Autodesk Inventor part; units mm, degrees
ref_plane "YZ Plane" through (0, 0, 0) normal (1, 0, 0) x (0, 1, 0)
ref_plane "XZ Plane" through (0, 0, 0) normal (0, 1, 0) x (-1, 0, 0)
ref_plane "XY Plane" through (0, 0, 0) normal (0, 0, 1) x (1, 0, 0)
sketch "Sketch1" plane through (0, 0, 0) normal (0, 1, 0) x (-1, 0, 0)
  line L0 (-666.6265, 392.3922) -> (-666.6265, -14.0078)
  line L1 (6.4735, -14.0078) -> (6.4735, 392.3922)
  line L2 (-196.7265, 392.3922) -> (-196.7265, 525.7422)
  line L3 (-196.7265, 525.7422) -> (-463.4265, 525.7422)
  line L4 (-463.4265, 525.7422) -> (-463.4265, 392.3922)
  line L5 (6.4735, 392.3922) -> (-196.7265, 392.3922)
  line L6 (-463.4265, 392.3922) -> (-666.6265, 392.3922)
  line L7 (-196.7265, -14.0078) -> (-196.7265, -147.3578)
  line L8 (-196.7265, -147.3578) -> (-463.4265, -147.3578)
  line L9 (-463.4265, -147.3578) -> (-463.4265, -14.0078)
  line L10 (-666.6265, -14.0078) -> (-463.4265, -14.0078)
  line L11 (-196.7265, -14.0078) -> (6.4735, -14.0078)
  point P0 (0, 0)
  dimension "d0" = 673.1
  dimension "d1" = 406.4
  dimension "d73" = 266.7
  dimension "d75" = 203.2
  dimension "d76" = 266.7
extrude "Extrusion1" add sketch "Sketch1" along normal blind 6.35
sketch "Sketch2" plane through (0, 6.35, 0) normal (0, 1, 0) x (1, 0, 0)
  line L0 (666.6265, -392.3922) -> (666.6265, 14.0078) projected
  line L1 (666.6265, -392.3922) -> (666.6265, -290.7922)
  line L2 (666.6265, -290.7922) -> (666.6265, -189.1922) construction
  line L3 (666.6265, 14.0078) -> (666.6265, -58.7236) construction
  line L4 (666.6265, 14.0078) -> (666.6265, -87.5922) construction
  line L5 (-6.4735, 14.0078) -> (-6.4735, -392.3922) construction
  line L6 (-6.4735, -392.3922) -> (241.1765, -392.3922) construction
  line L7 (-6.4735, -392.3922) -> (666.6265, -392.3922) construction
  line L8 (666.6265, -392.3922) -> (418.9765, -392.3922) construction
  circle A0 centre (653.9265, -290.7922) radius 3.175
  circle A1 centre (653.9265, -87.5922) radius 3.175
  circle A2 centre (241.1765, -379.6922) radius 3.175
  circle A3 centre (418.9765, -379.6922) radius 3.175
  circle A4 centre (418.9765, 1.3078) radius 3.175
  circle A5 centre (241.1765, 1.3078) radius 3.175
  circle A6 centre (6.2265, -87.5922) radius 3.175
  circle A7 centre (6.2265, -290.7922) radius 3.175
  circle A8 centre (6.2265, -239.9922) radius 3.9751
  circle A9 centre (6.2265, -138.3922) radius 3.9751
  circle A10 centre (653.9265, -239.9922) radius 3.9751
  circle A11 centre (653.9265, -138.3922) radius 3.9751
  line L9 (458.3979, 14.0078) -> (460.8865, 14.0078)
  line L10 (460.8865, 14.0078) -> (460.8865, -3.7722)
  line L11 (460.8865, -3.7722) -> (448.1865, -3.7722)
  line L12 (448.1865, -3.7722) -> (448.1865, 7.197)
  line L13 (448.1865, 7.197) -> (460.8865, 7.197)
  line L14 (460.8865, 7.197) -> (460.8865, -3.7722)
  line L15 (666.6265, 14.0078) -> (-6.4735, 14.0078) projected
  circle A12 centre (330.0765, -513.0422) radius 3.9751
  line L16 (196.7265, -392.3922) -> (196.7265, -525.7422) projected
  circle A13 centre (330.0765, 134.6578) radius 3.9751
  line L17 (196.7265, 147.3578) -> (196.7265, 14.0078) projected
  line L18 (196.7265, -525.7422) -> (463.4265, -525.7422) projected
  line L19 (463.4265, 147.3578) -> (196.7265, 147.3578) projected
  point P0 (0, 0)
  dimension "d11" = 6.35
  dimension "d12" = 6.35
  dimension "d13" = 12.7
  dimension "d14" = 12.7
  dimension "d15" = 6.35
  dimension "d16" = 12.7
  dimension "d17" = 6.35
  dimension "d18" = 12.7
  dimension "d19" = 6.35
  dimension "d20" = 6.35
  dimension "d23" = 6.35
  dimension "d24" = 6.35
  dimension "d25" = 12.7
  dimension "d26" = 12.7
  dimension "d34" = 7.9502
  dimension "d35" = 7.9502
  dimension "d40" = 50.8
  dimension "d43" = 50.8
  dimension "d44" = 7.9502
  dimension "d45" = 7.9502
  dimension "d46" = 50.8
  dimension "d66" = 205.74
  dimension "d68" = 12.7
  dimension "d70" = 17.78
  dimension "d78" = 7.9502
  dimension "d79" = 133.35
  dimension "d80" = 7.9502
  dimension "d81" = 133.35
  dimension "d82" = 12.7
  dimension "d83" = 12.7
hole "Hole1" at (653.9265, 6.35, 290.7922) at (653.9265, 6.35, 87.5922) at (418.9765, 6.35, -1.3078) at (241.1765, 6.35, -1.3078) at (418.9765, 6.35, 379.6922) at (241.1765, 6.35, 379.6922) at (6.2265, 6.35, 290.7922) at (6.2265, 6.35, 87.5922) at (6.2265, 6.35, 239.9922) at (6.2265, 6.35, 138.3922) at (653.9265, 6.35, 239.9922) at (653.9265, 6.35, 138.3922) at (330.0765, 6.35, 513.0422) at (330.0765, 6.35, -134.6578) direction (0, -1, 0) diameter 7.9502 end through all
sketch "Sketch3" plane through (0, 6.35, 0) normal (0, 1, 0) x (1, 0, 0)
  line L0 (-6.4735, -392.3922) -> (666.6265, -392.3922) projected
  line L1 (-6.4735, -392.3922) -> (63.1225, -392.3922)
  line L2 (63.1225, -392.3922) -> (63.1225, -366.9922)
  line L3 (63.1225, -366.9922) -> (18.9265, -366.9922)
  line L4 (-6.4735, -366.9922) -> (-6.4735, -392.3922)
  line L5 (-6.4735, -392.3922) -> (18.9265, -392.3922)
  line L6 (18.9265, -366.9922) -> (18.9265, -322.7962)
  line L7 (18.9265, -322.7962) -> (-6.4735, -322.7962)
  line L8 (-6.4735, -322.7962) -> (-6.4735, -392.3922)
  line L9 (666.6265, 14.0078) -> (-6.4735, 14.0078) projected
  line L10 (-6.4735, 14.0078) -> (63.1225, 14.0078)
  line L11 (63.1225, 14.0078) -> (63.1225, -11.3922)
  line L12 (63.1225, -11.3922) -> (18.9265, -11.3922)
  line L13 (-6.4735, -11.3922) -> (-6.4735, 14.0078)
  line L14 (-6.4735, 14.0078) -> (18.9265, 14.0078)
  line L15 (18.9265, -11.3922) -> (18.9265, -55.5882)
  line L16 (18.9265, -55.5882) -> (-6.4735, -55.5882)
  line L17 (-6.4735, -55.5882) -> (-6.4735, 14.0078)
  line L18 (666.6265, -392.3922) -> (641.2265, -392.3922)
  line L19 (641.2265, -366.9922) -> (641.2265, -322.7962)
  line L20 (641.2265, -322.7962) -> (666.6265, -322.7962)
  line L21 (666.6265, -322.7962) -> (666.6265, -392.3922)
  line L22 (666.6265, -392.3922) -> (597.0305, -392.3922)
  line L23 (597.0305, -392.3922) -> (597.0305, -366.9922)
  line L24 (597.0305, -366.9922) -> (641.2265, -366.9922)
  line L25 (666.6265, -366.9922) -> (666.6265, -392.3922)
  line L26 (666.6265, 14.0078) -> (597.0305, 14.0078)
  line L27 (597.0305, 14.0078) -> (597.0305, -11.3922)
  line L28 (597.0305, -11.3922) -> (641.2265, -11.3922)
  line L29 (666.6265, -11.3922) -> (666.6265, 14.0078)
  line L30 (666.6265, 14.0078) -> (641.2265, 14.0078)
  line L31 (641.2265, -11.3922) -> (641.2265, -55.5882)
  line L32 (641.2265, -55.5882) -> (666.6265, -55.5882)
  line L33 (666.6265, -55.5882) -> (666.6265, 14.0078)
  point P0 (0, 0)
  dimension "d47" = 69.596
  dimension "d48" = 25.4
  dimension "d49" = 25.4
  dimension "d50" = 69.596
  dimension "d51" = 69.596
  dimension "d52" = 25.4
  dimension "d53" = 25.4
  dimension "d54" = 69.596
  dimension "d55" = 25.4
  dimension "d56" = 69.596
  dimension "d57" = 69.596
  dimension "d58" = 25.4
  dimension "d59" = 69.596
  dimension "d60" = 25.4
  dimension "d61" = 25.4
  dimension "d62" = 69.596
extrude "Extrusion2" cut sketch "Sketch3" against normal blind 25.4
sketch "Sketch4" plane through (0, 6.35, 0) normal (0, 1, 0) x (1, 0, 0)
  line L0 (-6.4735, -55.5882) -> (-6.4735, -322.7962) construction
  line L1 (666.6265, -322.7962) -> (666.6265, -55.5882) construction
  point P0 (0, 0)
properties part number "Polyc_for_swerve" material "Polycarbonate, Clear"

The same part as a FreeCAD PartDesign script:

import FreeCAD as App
import Part
import Sketcher

V = App.Vector
Q = App.Units.Quantity

doc = App.newDocument("Part")
body = doc.addObject("PartDesign::Body", "Body")

# Sketch on XZ plane
sketch1 = body.newObject("Sketcher::SketchObject", "Sketch")
sketch1.AttachmentSupport = (doc.getObject("XZ_Plane"), [""])
sketch1.MapMode = "FlatFace"
sketch1.addGeometry(Part.LineSegment(V(463, 392, 0), V(667, 392, 0)), False)
sketch1.addGeometry(Part.LineSegment(V(667, 392, 0), V(667, -14, 0)), False)
sketch1.addGeometry(Part.LineSegment(V(667, -14, 0), V(463, -14, 0)), False)
sketch1.addGeometry(Part.LineSegment(V(463, -14, 0), V(463, -147, 0)), False)
sketch1.addGeometry(Part.LineSegment(V(463, -147, 0), V(197, -147, 0)), False)
sketch1.addGeometry(Part.LineSegment(V(197, -147, 0), V(197, -14, 0)), False)
sketch1.addGeometry(Part.LineSegment(V(197, -14, 0), V(-6, -14, 0)), False)
sketch1.addGeometry(Part.LineSegment(V(-6, -14, 0), V(-6, 392, 0)), False)
sketch1.addGeometry(Part.LineSegment(V(-6, 392, 0), V(197, 392, 0)), False)
sketch1.addGeometry(Part.LineSegment(V(197, 392, 0), V(197, 526, 0)), False)
sketch1.addGeometry(Part.LineSegment(V(197, 526, 0), V(463, 526, 0)), False)
sketch1.addGeometry(Part.LineSegment(V(463, 526, 0), V(463, 392, 0)), False)
sketch1.addConstraint(Sketcher.Constraint("Coincident", 0, 2, 1, 1))
sketch1.addConstraint(Sketcher.Constraint("Coincident", 1, 2, 2, 1))
sketch1.addConstraint(Sketcher.Constraint("Coincident", 2, 2, 3, 1))
sketch1.addConstraint(Sketcher.Constraint("Coincident", 3, 2, 4, 1))
sketch1.addConstraint(Sketcher.Constraint("Coincident", 4, 2, 5, 1))
sketch1.addConstraint(Sketcher.Constraint("Coincident", 5, 2, 6, 1))
sketch1.addConstraint(Sketcher.Constraint("Coincident", 6, 2, 7, 1))
sketch1.addConstraint(Sketcher.Constraint("Coincident", 7, 2, 8, 1))
sketch1.addConstraint(Sketcher.Constraint("Coincident", 8, 2, 9, 1))
sketch1.addConstraint(Sketcher.Constraint("Coincident", 9, 2, 10, 1))
sketch1.addConstraint(Sketcher.Constraint("Coincident", 10, 2, 11, 1))
sketch1.addConstraint(Sketcher.Constraint("Coincident", 11, 2, 0, 1))
sketch1.addConstraint(Sketcher.Constraint("Horizontal", 0))
sketch1.addConstraint(Sketcher.Constraint("Vertical", 1))
sketch1.addConstraint(Sketcher.Constraint("Horizontal", 2))
sketch1.addConstraint(Sketcher.Constraint("Vertical", 3))
sketch1.addConstraint(Sketcher.Constraint("Horizontal", 4))
sketch1.addConstraint(Sketcher.Constraint("Vertical", 5))
sketch1.addConstraint(Sketcher.Constraint("Horizontal", 6))
sketch1.addConstraint(Sketcher.Constraint("Vertical", 7))
sketch1.addConstraint(Sketcher.Constraint("Horizontal", 8))
sketch1.addConstraint(Sketcher.Constraint("Vertical", 9))
sketch1.addConstraint(Sketcher.Constraint("Horizontal", 10))
sketch1.addConstraint(Sketcher.Constraint("Vertical", 11))
sketch1.addConstraint(Sketcher.Constraint("Horizontal", 2, 2, 5, 2))
sketch1.addConstraint(Sketcher.Constraint("Horizontal", 0, 2, 7, 2))
sketch1.addConstraint(Sketcher.Constraint("Vertical", 5, 2, 8, 2))
sketch1.addConstraint(Sketcher.Constraint("Vertical", 3, 2, 10, 2))
sketch1.addConstraint(Sketcher.Constraint("Equal", 2, 6))
sketch1.addConstraint(Sketcher.Constraint("Equal", 5, 9))
sketch1.addConstraint(Sketcher.Constraint("DistanceX", 0, 1, 0, 2, Q("8 in")))
sketch1.addConstraint(Sketcher.Constraint("DistanceY", 1, 2, 1, 1, Q("16 in")))
sketch1.addConstraint(Sketcher.Constraint("DistanceX", 4, 2, 4, 1, Q("10.5 in")))
sketch1.addConstraint(Sketcher.Constraint("DistanceY", 3, 2, 3, 1, Q("5.25 in")))
sketch1.addConstraint(Sketcher.Constraint("DistanceY", -1, 1, 0, 2, Q("15.4485 in")))
sketch1.addConstraint(Sketcher.Constraint("DistanceX", -1, 1, 0, 2, 666.6265))
pad1 = body.newObject("PartDesign::Pad", "Pad")
pad1.Profile = sketch1
pad1.Length = Q("0.25 in")
pad1.Reversed = True

# Sketch on XZ plane
sketch2 = body.newObject("Sketcher::SketchObject", "Sketch001")
sketch2.AttachmentSupport = (doc.getObject("XZ_Plane"), [""])
sketch2.MapMode = "FlatFace"
sketch2.AttachmentOffset = App.Placement(V(0, 0, -0.25 * 25.4), App.Rotation())
sketch2.addGeometry(Part.Circle(V(653.9, 290.8, 0), V(0, 0, 1), 4), False)
sketch2.addGeometry(Part.Circle(V(653.9, 87.6, 0), V(0, 0, 1), 4), False)
sketch2.addGeometry(Part.Circle(V(419, -1.3, 0), V(0, 0, 1), 4), False)
sketch2.addGeometry(Part.Circle(V(241.2, -1.3, 0), V(0, 0, 1), 4), False)
sketch2.addGeometry(Part.Circle(V(419, 379.7, 0), V(0, 0, 1), 4), False)
sketch2.addGeometry(Part.Circle(V(241.2, 379.7, 0), V(0, 0, 1), 4), False)
sketch2.addGeometry(Part.Circle(V(6.2, 290.8, 0), V(0, 0, 1), 4), False)
sketch2.addGeometry(Part.Circle(V(6.2, 87.6, 0), V(0, 0, 1), 4), False)
sketch2.addGeometry(Part.Circle(V(6.2, 240, 0), V(0, 0, 1), 4), False)
sketch2.addGeometry(Part.Circle(V(6.2, 138.4, 0), V(0, 0, 1), 4), False)
sketch2.addGeometry(Part.Circle(V(653.9, 240, 0), V(0, 0, 1), 4), False)
sketch2.addGeometry(Part.Circle(V(653.9, 138.4, 0), V(0, 0, 1), 4), False)
sketch2.addGeometry(Part.Circle(V(330.1, 513, 0), V(0, 0, 1), 4), False)
sketch2.addGeometry(Part.Circle(V(330.1, -134.7, 0), V(0, 0, 1), 4), False)
sketch2.addConstraint(Sketcher.Constraint("Equal", 0, 1))
sketch2.addConstraint(Sketcher.Constraint("Equal", 1, 2))
sketch2.addConstraint(Sketcher.Constraint("Equal", 2, 3))
sketch2.addConstraint(Sketcher.Constraint("Equal", 3, 4))
sketch2.addConstraint(Sketcher.Constraint("Equal", 4, 5))
sketch2.addConstraint(Sketcher.Constraint("Equal", 5, 6))
sketch2.addConstraint(Sketcher.Constraint("Equal", 6, 7))
sketch2.addConstraint(Sketcher.Constraint("Equal", 7, 8))
sketch2.addConstraint(Sketcher.Constraint("Equal", 8, 9))
sketch2.addConstraint(Sketcher.Constraint("Equal", 9, 10))
sketch2.addConstraint(Sketcher.Constraint("Equal", 10, 11))
sketch2.addConstraint(Sketcher.Constraint("Equal", 11, 12))
sketch2.addConstraint(Sketcher.Constraint("Equal", 12, 13))
sketch2.addConstraint(Sketcher.Constraint("Horizontal", 2, 3, 3, 3))
sketch2.addConstraint(Sketcher.Constraint("Horizontal", 4, 3, 5, 3))
sketch2.addConstraint(Sketcher.Constraint("Horizontal", 0, 3, 6, 3))
sketch2.addConstraint(Sketcher.Constraint("Horizontal", 1, 3, 7, 3))
sketch2.addConstraint(Sketcher.Constraint("Horizontal", 8, 3, 10, 3))
sketch2.addConstraint(Sketcher.Constraint("Horizontal", 9, 3, 11, 3))
sketch2.addConstraint(Sketcher.Constraint("Vertical", 0, 3, 1, 3))
sketch2.addConstraint(Sketcher.Constraint("Vertical", 2, 3, 4, 3))
sketch2.addConstraint(Sketcher.Constraint("Vertical", 3, 3, 5, 3))
sketch2.addConstraint(Sketcher.Constraint("Vertical", 6, 3, 7, 3))
sketch2.addConstraint(Sketcher.Constraint("Vertical", 7, 3, 8, 3))
sketch2.addConstraint(Sketcher.Constraint("Vertical", 8, 3, 9, 3))
sketch2.addConstraint(Sketcher.Constraint("Vertical", 1, 3, 10, 3))
sketch2.addConstraint(Sketcher.Constraint("Vertical", 10, 3, 11, 3))
sketch2.addConstraint(Sketcher.Constraint("Vertical", 12, 3, 13, 3))
sketch2.addConstraint(Sketcher.Constraint("Diameter", 0, Q("0.313 in")))
sketch2.addConstraint(Sketcher.Constraint("DistanceY", 1, 3, 0, 3, Q("8 in")))
sketch2.addConstraint(Sketcher.Constraint("DistanceX", 3, 3, 2, 3, Q("7 in")))
sketch2.addConstraint(Sketcher.Constraint("DistanceY", 2, 3, 4, 3, Q("15 in")))
sketch2.addConstraint(Sketcher.Constraint("DistanceY", 8, 3, 6, 3, Q("2 in")))
sketch2.addConstraint(Sketcher.Constraint("DistanceY", 7, 3, 9, 3, Q("2 in")))
sketch2.addConstraint(Sketcher.Constraint("DistanceY", 2, 3, 1, 3, Q("3.5 in")))
sketch2.addConstraint(Sketcher.Constraint("DistanceX", 6, 3, 0, 3, Q("25.5 in")))
sketch2.addConstraint(Sketcher.Constraint("DistanceX", 12, 3, 4, 3, Q("3.5 in")))
sketch2.addConstraint(Sketcher.Constraint("DistanceX", 2, 3, 1, 3, Q("9.25 in")))
sketch2.addConstraint(Sketcher.Constraint("DistanceY", 4, 3, 12, 3, Q("5.25 in")))
sketch2.addConstraint(Sketcher.Constraint("DistanceY", 13, 3, 2, 3, Q("5.25 in")))
sketch2.addConstraint(Sketcher.Constraint("DistanceY", -1, 1, 0, 3, Q("11.4485 in")))
sketch2.addConstraint(Sketcher.Constraint("DistanceX", -1, 1, 0, 3, 653.9265))
doc.recompute()
hole = body.newObject("PartDesign::Hole", "Hole")
hole.Profile = sketch2
hole.ThreadType = "None"
hole.Diameter = Q("0.313 in")
hole.DepthType = "ThroughAll"
hole.Reversed = True

# Sketch on XZ plane
sketch3 = body.newObject("Sketcher::SketchObject", "Sketch002")
sketch3.AttachmentSupport = (doc.getObject("XZ_Plane"), [""])
sketch3.MapMode = "FlatFace"
sketch3.AttachmentOffset = App.Placement(V(0, 0, -0.25 * 25.4), App.Rotation())
sketch3.addGeometry(Part.LineSegment(V(-6, 323, 0), V(-6, 392, 0)), False)
sketch3.addGeometry(Part.LineSegment(V(-6, 392, 0), V(63, 392, 0)), False)
sketch3.addGeometry(Part.LineSegment(V(63, 392, 0), V(63, 367, 0)), False)
sketch3.addGeometry(Part.LineSegment(V(63, 367, 0), V(19, 367, 0)), False)
sketch3.addGeometry(Part.LineSegment(V(19, 367, 0), V(19, 323, 0)), False)
sketch3.addGeometry(Part.LineSegment(V(19, 323, 0), V(-6, 323, 0)), False)
sketch3.addGeometry(Part.LineSegment(V(597, 367, 0), V(597, 392, 0)), False)
sketch3.addGeometry(Part.LineSegment(V(597, 392, 0), V(667, 392, 0)), False)
sketch3.addGeometry(Part.LineSegment(V(667, 392, 0), V(667, 323, 0)), False)
sketch3.addGeometry(Part.LineSegment(V(667, 323, 0), V(641, 323, 0)), False)
sketch3.addGeometry(Part.LineSegment(V(641, 323, 0), V(641, 367, 0)), False)
sketch3.addGeometry(Part.LineSegment(V(641, 367, 0), V(597, 367, 0)), False)
sketch3.addGeometry(Part.LineSegment(V(667, 56, 0), V(667, -14, 0)), False)
sketch3.addGeometry(Part.LineSegment(V(667, -14, 0), V(597, -14, 0)), False)
sketch3.addGeometry(Part.LineSegment(V(597, -14, 0), V(597, 11, 0)), False)
sketch3.addGeometry(Part.LineSegment(V(597, 11, 0), V(641, 11, 0)), False)
sketch3.addGeometry(Part.LineSegment(V(641, 11, 0), V(641, 56, 0)), False)
sketch3.addGeometry(Part.LineSegment(V(641, 56, 0), V(667, 56, 0)), False)
sketch3.addGeometry(Part.LineSegment(V(63, 11, 0), V(63, -14, 0)), False)
sketch3.addGeometry(Part.LineSegment(V(63, -14, 0), V(-6, -14, 0)), False)
sketch3.addGeometry(Part.LineSegment(V(-6, -14, 0), V(-6, 56, 0)), False)
sketch3.addGeometry(Part.LineSegment(V(-6, 56, 0), V(19, 56, 0)), False)
sketch3.addGeometry(Part.LineSegment(V(19, 56, 0), V(19, 11, 0)), False)
sketch3.addGeometry(Part.LineSegment(V(19, 11, 0), V(63, 11, 0)), False)
sketch3.addConstraint(Sketcher.Constraint("Coincident", 0, 2, 1, 1))
sketch3.addConstraint(Sketcher.Constraint("Coincident", 1, 2, 2, 1))
sketch3.addConstraint(Sketcher.Constraint("Coincident", 2, 2, 3, 1))
sketch3.addConstraint(Sketcher.Constraint("Coincident", 3, 2, 4, 1))
sketch3.addConstraint(Sketcher.Constraint("Coincident", 4, 2, 5, 1))
sketch3.addConstraint(Sketcher.Constraint("Coincident", 5, 2, 0, 1))
sketch3.addConstraint(Sketcher.Constraint("Coincident", 6, 2, 7, 1))
sketch3.addConstraint(Sketcher.Constraint("Coincident", 7, 2, 8, 1))
sketch3.addConstraint(Sketcher.Constraint("Coincident", 8, 2, 9, 1))
sketch3.addConstraint(Sketcher.Constraint("Coincident", 9, 2, 10, 1))
sketch3.addConstraint(Sketcher.Constraint("Coincident", 10, 2, 11, 1))
sketch3.addConstraint(Sketcher.Constraint("Coincident", 11, 2, 6, 1))
sketch3.addConstraint(Sketcher.Constraint("Coincident", 12, 2, 13, 1))
sketch3.addConstraint(Sketcher.Constraint("Coincident", 13, 2, 14, 1))
sketch3.addConstraint(Sketcher.Constraint("Coincident", 14, 2, 15, 1))
sketch3.addConstraint(Sketcher.Constraint("Coincident", 15, 2, 16, 1))
sketch3.addConstraint(Sketcher.Constraint("Coincident", 16, 2, 17, 1))
sketch3.addConstraint(Sketcher.Constraint("Coincident", 17, 2, 12, 1))
sketch3.addConstraint(Sketcher.Constraint("Coincident", 18, 2, 19, 1))
sketch3.addConstraint(Sketcher.Constraint("Coincident", 19, 2, 20, 1))
sketch3.addConstraint(Sketcher.Constraint("Coincident", 20, 2, 21, 1))
sketch3.addConstraint(Sketcher.Constraint("Coincident", 21, 2, 22, 1))
sketch3.addConstraint(Sketcher.Constraint("Coincident", 22, 2, 23, 1))
sketch3.addConstraint(Sketcher.Constraint("Coincident", 23, 2, 18, 1))
sketch3.addConstraint(Sketcher.Constraint("Vertical", 0))
sketch3.addConstraint(Sketcher.Constraint("Horizontal", 1))
sketch3.addConstraint(Sketcher.Constraint("Vertical", 2))
sketch3.addConstraint(Sketcher.Constraint("Horizontal", 3))
sketch3.addConstraint(Sketcher.Constraint("Vertical", 4))
sketch3.addConstraint(Sketcher.Constraint("Horizontal", 5))
sketch3.addConstraint(Sketcher.Constraint("Vertical", 6))
sketch3.addConstraint(Sketcher.Constraint("Horizontal", 7))
sketch3.addConstraint(Sketcher.Constraint("Vertical", 8))
sketch3.addConstraint(Sketcher.Constraint("Horizontal", 9))
sketch3.addConstraint(Sketcher.Constraint("Vertical", 10))
sketch3.addConstraint(Sketcher.Constraint("Horizontal", 11))
sketch3.addConstraint(Sketcher.Constraint("Vertical", 12))
sketch3.addConstraint(Sketcher.Constraint("Horizontal", 13))
sketch3.addConstraint(Sketcher.Constraint("Vertical", 14))
sketch3.addConstraint(Sketcher.Constraint("Horizontal", 15))
sketch3.addConstraint(Sketcher.Constraint("Vertical", 16))
sketch3.addConstraint(Sketcher.Constraint("Horizontal", 17))
sketch3.addConstraint(Sketcher.Constraint("Vertical", 18))
sketch3.addConstraint(Sketcher.Constraint("Horizontal", 19))
sketch3.addConstraint(Sketcher.Constraint("Vertical", 20))
sketch3.addConstraint(Sketcher.Constraint("Horizontal", 21))
sketch3.addConstraint(Sketcher.Constraint("Vertical", 22))
sketch3.addConstraint(Sketcher.Constraint("Horizontal", 23))
sketch3.addConstraint(Sketcher.Constraint("Horizontal", 1, 2, 6, 2))
sketch3.addConstraint(Sketcher.Constraint("Horizontal", 5, 2, 8, 2))
sketch3.addConstraint(Sketcher.Constraint("Horizontal", 3, 2, 10, 2))
sketch3.addConstraint(Sketcher.Constraint("Horizontal", 13, 2, 18, 2))
sketch3.addConstraint(Sketcher.Constraint("Horizontal", 17, 2, 20, 2))
sketch3.addConstraint(Sketcher.Constraint("Horizontal", 15, 2, 22, 2))
sketch3.addConstraint(Sketcher.Constraint("Vertical", 8, 2, 12, 2))
sketch3.addConstraint(Sketcher.Constraint("Vertical", 11, 2, 13, 2))
sketch3.addConstraint(Sketcher.Constraint("Vertical", 10, 2, 15, 2))
sketch3.addConstraint(Sketcher.Constraint("Vertical", 2, 2, 18, 2))
sketch3.addConstraint(Sketcher.Constraint("Vertical", 5, 2, 19, 2))
sketch3.addConstraint(Sketcher.Constraint("Vertical", 4, 2, 21, 2))
sketch3.addConstraint(Sketcher.Constraint("Equal", 1, 7))
sketch3.addConstraint(Sketcher.Constraint("Equal", 5, 9))
sketch3.addConstraint(Sketcher.Constraint("Equal", 19, 0))
sketch3.addConstraint(Sketcher.Constraint("Equal", 21, 2))
sketch3.addConstraint(Sketcher.Constraint("Equal", 8, 12))
sketch3.addConstraint(Sketcher.Constraint("Equal", 6, 14))
sketch3.addConstraint(Sketcher.Constraint("DistanceX", 5, 2, 5, 1, Q("1 in")))
sketch3.addConstraint(Sketcher.Constraint("DistanceX", 1, 1, 1, 2, Q("2.74 in")))
sketch3.addConstraint(Sketcher.Constraint("DistanceY", 12, 2, 10, 2, Q("15 in")))
sketch3.addConstraint(Sketcher.Constraint("DistanceX", 3, 2, 7, 2, Q("25.5 in")))
sketch3.addConstraint(Sketcher.Constraint("DistanceY", -1, 1, 0, 2, Q("15.4485 in")))
sketch3.addConstraint(Sketcher.Constraint("DistanceX", 0, 2, -1, 1, 6.4735))
pocket1 = body.newObject("PartDesign::Pocket", "Pocket")
pocket1.Profile = sketch3
pocket1.Length = Q("1 in")
pocket1.Reversed = True

doc.recompute()
